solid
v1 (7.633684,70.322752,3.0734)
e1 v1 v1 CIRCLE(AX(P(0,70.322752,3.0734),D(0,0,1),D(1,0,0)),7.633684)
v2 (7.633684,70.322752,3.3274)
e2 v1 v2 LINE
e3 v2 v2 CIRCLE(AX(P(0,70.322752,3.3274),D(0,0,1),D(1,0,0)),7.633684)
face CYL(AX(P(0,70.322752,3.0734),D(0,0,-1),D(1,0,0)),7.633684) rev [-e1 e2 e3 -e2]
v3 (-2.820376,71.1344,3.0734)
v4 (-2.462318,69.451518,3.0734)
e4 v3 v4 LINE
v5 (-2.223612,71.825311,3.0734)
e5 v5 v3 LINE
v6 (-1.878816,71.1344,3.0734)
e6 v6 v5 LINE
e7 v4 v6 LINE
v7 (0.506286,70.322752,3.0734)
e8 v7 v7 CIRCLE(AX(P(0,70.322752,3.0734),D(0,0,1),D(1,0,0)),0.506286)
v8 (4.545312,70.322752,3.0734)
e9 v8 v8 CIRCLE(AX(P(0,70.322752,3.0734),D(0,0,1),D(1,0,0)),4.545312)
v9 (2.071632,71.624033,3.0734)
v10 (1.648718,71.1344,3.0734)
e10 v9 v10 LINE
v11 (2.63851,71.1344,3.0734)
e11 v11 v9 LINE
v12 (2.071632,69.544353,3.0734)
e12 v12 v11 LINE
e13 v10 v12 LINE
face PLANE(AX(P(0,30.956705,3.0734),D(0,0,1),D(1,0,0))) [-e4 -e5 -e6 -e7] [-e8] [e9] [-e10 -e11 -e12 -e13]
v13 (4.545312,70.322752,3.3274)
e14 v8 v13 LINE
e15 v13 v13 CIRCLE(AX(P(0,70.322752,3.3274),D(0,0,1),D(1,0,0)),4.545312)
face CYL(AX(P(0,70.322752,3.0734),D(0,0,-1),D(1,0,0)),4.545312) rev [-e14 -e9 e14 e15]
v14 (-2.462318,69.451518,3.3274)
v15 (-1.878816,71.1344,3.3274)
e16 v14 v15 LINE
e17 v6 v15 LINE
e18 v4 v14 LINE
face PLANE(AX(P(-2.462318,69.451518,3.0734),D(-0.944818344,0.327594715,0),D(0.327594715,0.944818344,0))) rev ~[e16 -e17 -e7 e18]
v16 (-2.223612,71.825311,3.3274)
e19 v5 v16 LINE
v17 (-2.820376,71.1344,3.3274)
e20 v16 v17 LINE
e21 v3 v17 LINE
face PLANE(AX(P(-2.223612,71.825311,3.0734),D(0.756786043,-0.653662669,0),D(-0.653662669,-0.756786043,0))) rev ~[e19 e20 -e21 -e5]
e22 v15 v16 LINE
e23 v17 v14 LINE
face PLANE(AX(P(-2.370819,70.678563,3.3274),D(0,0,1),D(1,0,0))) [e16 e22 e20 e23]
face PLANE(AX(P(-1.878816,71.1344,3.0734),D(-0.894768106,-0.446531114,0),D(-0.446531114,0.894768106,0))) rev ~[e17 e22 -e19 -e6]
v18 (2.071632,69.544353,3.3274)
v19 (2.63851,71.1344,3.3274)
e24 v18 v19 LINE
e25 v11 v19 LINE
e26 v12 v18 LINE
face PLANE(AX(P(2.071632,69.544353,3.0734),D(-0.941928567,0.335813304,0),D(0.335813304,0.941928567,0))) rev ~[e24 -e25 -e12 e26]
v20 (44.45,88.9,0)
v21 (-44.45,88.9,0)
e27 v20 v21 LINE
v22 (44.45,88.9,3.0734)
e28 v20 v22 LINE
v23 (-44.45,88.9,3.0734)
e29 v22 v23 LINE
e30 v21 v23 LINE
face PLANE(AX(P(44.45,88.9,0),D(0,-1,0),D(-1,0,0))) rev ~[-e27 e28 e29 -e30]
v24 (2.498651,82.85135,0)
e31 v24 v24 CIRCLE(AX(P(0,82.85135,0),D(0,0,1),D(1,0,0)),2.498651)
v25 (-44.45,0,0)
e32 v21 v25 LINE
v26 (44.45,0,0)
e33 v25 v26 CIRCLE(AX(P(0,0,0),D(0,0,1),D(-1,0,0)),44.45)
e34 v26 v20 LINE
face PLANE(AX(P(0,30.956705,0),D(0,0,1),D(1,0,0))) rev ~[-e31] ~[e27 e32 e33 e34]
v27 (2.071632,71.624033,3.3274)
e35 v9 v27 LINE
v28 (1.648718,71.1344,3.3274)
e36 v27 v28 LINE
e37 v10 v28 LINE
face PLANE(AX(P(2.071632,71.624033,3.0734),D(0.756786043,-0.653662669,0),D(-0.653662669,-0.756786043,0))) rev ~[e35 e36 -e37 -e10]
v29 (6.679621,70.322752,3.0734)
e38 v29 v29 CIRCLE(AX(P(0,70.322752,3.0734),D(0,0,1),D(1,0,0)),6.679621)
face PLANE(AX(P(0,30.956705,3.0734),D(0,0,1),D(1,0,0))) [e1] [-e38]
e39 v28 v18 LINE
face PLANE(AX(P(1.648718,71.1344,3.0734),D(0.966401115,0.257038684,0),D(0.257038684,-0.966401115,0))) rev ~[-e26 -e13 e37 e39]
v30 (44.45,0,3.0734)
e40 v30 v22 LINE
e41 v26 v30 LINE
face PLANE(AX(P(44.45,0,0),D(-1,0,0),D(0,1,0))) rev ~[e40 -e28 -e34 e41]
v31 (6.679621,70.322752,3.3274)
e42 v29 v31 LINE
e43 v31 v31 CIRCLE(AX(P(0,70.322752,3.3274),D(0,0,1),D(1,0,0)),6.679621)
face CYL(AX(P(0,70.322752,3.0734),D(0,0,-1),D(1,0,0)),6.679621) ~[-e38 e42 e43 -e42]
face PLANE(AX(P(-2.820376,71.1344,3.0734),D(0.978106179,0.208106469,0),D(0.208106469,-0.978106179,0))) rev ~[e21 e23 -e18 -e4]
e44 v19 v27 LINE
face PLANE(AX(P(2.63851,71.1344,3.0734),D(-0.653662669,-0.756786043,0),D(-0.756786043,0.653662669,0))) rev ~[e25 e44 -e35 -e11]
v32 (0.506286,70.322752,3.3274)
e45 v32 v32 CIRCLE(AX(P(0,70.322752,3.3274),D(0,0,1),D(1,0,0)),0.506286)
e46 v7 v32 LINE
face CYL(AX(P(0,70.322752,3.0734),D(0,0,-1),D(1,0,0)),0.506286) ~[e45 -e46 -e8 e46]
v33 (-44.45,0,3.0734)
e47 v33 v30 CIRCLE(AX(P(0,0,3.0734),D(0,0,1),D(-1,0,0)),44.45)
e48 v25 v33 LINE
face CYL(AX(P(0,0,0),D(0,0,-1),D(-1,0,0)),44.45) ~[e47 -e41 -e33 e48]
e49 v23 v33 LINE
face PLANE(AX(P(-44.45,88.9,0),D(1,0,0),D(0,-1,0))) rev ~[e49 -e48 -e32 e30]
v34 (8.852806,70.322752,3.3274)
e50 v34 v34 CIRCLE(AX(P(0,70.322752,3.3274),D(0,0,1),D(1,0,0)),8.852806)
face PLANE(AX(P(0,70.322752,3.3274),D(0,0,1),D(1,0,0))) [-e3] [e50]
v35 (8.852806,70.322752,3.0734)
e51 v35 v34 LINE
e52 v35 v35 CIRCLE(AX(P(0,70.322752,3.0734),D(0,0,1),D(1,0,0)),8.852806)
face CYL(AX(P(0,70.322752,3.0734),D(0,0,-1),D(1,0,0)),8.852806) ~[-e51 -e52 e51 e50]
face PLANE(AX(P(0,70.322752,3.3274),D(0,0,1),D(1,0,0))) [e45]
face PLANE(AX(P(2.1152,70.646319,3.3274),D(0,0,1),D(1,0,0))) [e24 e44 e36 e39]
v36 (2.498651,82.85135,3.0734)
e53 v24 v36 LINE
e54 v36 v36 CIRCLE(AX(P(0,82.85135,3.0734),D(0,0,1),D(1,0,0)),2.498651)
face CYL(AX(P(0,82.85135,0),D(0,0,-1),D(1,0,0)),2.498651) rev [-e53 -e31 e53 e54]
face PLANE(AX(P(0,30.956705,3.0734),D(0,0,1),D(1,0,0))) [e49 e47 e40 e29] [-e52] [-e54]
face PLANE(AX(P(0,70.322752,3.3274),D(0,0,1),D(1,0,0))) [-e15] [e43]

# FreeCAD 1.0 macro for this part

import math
import FreeCAD as App
import Part
import Sketcher
from FreeCAD import Vector
Q = App.Units.Quantity


def add_polygon(sketch, points):
    """Adds a closed chain of lines whose ends are joined by coincident constraints."""
    first, n = sketch.GeometryCount, len(points)
    for a, b in zip(points, points[1:] + points[:1]):
        sketch.addGeometry(Part.LineSegment(App.Vector(*a, 0), App.Vector(*b, 0)), False)
    for i in range(n):
        sketch.addConstraint(Sketcher.Constraint("Coincident", first + i, 2, first + (i + 1) % n, 1))

doc = App.newDocument("Part")
body = doc.addObject("PartDesign::Body", "Body")

# Sketch on XY plane
sketch1 = body.newObject("Sketcher::SketchObject", "Sketch")
sketch1.AttachmentSupport = (doc.getObject("XY_Plane"), [""])
sketch1.MapMode = "FlatFace"
sketch1.addGeometry(Part.LineSegment(Vector(-44.5, 88.9, 0), Vector(-44.5, 0, 0)), False)
sketch1.addGeometry(Part.ArcOfCircle(Part.Circle(Vector(0, 0, 0), Vector(0, 0, 1), 44.5), math.radians(180), math.radians(360)), False)
sketch1.addGeometry(Part.LineSegment(Vector(44.5, 0, 0), Vector(44.5, 88.9, 0)), False)
sketch1.addGeometry(Part.LineSegment(Vector(44.5, 88.9, 0), Vector(-44.5, 88.9, 0)), False)
sketch1.addGeometry(Part.Circle(Vector(0, 82.9, 0), Vector(0, 0, 1), 2.5), False)
sketch1.addConstraint(Sketcher.Constraint("Tangent", 0, 2, 1, 1))
sketch1.addConstraint(Sketcher.Constraint("Tangent", 1, 2, 2, 1))
sketch1.addConstraint(Sketcher.Constraint("Coincident", 2, 2, 3, 1))
sketch1.addConstraint(Sketcher.Constraint("Coincident", 3, 2, 0, 1))
sketch1.addConstraint(Sketcher.Constraint("Vertical", 0))
sketch1.addConstraint(Sketcher.Constraint("Vertical", 2))
sketch1.addConstraint(Sketcher.Constraint("Horizontal", 3))
sketch1.addConstraint(Sketcher.Constraint("Coincident", 1, 3, -1, 1))
sketch1.addConstraint(Sketcher.Constraint("PointOnObject", 4, 3, -2))
sketch1.addConstraint(Sketcher.Constraint("Equal", 3, 0))
sketch1.addConstraint(Sketcher.Constraint("Radius", 1, Q("1.75 in")))
sketch1.addConstraint(Sketcher.Constraint("Diameter", 4, 4.997301))
sketch1.addConstraint(Sketcher.Constraint("DistanceY", -1, 1, 4, 3, 82.85135))
pad1 = body.newObject("PartDesign::Pad", "Pad")
pad1.Profile = sketch1
pad1.Length = Q("0.121 in")

# Sketch on XY plane
sketch2 = body.newObject("Sketcher::SketchObject", "Sketch001")
sketch2.AttachmentSupport = (doc.getObject("XY_Plane"), [""])
sketch2.MapMode = "FlatFace"
sketch2.AttachmentOffset = App.Placement(Vector(0, 0, 0.121 * 25.4), App.Rotation())
sketch2.addGeometry(Part.Circle(Vector(0, 70.3, 0), Vector(0, 0, 1), 8.9), False)  # 0
sketch2.addGeometry(Part.Circle(Vector(0, 70.3, 0), Vector(0, 0, 1), 7.6), False)  # 1
sketch2.addGeometry(Part.Circle(Vector(0, 70.3, 0), Vector(0, 0, 1), 6.7), False)  # 2
sketch2.addGeometry(Part.Circle(Vector(0, 70.3, 0), Vector(0, 0, 1), 4.5), False)  # 3
add_polygon(sketch2, [(-2.2, 71.8), (-2.8, 71.1), (-2.5, 69.5), (-1.9, 71.1)])  # lines 4-7
add_polygon(sketch2, [(2.1, 71.6), (1.6, 71.1), (2.1, 69.5), (2.6, 71.1)])  # lines 8-11
sketch2.addGeometry(Part.Circle(Vector(0, 70.3, 0), Vector(0, 0, 1), 0.5), False)  # 12
sketch2.addConstraint(Sketcher.Constraint("Coincident", 1, 3, 0, 3))
sketch2.addConstraint(Sketcher.Constraint("Coincident", 2, 3, 0, 3))
sketch2.addConstraint(Sketcher.Constraint("Coincident", 3, 3, 0, 3))
sketch2.addConstraint(Sketcher.Constraint("Coincident", 12, 3, 0, 3))
sketch2.addConstraint(Sketcher.Constraint("PointOnObject", 0, 3, -2))
sketch2.addConstraint(Sketcher.Constraint("Parallel", 4, 8))
sketch2.addConstraint(Sketcher.Constraint("Perpendicular", 8, 11))
sketch2.addConstraint(Sketcher.Constraint("Horizontal", 4, 2, 6, 2))
sketch2.addConstraint(Sketcher.Constraint("Horizontal", 6, 2, 8, 2))
sketch2.addConstraint(Sketcher.Constraint("Horizontal", 8, 2, 10, 2))
sketch2.addConstraint(Sketcher.Constraint("Vertical", 9, 2, 11, 2))
sketch2.addConstraint(Sketcher.Constraint("Diameter", 1, 15.267369))
sketch2.addConstraint(Sketcher.Constraint("Diameter", 2, 13.359242))
sketch2.addConstraint(Sketcher.Constraint("Diameter", 0, 17.705612))
sketch2.addConstraint(Sketcher.Constraint("Diameter", 3, 9.090623))
sketch2.addConstraint(Sketcher.Constraint("Diameter", 12, 1.012572))
sketch2.addConstraint(Sketcher.Constraint("DistanceY", -1, 1, 4, 2, 71.1344))
sketch2.addConstraint(Sketcher.Constraint("DistanceX", 5, 2, 6, 2, 0.583502))
sketch2.addConstraint(Sketcher.Constraint("DistanceY", 9, 2, 0, 3, 0.778399))
sketch2.addConstraint(Sketcher.Constraint("Distance", 5, 1.720552))
sketch2.addConstraint(Sketcher.Constraint("Distance", 6, 1.78117))
sketch2.addConstraint(Sketcher.Constraint("Distance", 8, 0.64699))
sketch2.addConstraint(Sketcher.Constraint("Distance", 9, 1.645329))
sketch2.addConstraint(Sketcher.Constraint("Distance", 11, 0.749061))
sketch2.addConstraint(Sketcher.Constraint("DistanceY", -1, 1, 7, 2, 71.825311))
sketch2.addConstraint(Sketcher.Constraint("DistanceX", -1, 1, 8, 2, 1.648718))
sketch2.addConstraint(Sketcher.Constraint("DistanceX", 4, 2, -1, 1, 2.820376))
pad2 = body.newObject("PartDesign::Pad", "Pad001")
pad2.Profile = sketch2
pad2.Length = Q("0.01 in")

doc.recompute()
